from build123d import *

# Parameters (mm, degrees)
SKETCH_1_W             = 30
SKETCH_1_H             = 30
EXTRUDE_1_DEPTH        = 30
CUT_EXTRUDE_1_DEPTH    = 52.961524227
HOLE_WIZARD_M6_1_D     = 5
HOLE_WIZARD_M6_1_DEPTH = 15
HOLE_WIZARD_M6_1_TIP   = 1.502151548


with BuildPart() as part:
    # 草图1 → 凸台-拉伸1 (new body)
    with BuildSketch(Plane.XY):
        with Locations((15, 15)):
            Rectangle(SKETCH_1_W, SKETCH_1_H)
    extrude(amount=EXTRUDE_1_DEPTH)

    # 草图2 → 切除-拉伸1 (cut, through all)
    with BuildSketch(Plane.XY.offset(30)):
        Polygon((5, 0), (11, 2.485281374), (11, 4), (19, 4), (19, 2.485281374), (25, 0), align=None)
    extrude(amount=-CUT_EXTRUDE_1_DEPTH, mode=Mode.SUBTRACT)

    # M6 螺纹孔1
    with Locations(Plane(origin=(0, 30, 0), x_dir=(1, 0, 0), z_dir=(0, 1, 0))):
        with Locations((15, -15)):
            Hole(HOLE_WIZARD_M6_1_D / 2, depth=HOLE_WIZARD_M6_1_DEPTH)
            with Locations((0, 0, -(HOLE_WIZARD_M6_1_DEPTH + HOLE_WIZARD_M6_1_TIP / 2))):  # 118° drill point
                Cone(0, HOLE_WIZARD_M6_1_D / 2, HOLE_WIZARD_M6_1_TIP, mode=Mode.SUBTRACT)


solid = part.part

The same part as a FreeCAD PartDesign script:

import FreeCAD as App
import Part
import Sketcher
Q = App.Units.Quantity

doc = App.newDocument("Part")
body = doc.addObject("PartDesign::Body", "Body")

# Sketch on XY plane
sketch1 = body.newObject("Sketcher::SketchObject", "Sketch")
sketch1.AttachmentSupport = (doc.getObject("XY_Plane"), [""])
sketch1.MapMode = "FlatFace"
sketch1.addGeometry([
    Part.LineSegment(App.Vector(0, 30, 0), App.Vector(0, 0, 0)),
    Part.LineSegment(App.Vector(0, 0, 0), App.Vector(30, 0, 0)),
    Part.LineSegment(App.Vector(30, 0, 0), App.Vector(30, 30, 0)),
    Part.LineSegment(App.Vector(30, 30, 0), App.Vector(0, 30, 0)),
], False)
sketch1.addConstraint([
    Sketcher.Constraint("Coincident", 0, 2, 1, 1),
    Sketcher.Constraint("Coincident", 1, 2, 2, 1),
    Sketcher.Constraint("Coincident", 2, 2, 3, 1),
    Sketcher.Constraint("Coincident", 3, 2, 0, 1),
    Sketcher.Constraint("Vertical", 0),
    Sketcher.Constraint("Horizontal", 1),
    Sketcher.Constraint("Vertical", 2),
    Sketcher.Constraint("Horizontal", 3),
    Sketcher.Constraint("Coincident", 0, 2, -1, 1),
    Sketcher.Constraint("Equal", 3, 0),
    Sketcher.Constraint("DistanceX", 1, 1, 1, 2, 30.0),
])
pad1 = body.newObject("PartDesign::Pad", "Pad")
pad1.Profile = sketch1
pad1.Length = 30

# Sketch on XY plane
sketch2 = body.newObject("Sketcher::SketchObject", "Sketch001")
sketch2.AttachmentSupport = (doc.getObject("XY_Plane"), [""])
sketch2.MapMode = "FlatFace"
sketch2.AttachmentOffset = App.Placement(App.Vector(0, 0, 30), App.Rotation())
sketch2.addGeometry([
    Part.LineSegment(App.Vector(11, 2.5, 0), App.Vector(5, 0, 0)),  # 0
    Part.LineSegment(App.Vector(5, 0, 0), App.Vector(25, 0, 0)),  # 1
    Part.LineSegment(App.Vector(25, 0, 0), App.Vector(19, 2.5, 0)),  # 2
    Part.LineSegment(App.Vector(19, 2.5, 0), App.Vector(19, 4, 0)),  # 3
    Part.LineSegment(App.Vector(19, 4, 0), App.Vector(11, 4, 0)),  # 4
    Part.LineSegment(App.Vector(11, 4, 0), App.Vector(11, 2.5, 0)),  # 5
], False)
sketch2.addConstraint([
    Sketcher.Constraint("Coincident", 0, 2, 1, 1),
    Sketcher.Constraint("Coincident", 1, 2, 2, 1),
    Sketcher.Constraint("Coincident", 2, 2, 3, 1),
    Sketcher.Constraint("Coincident", 3, 2, 4, 1),
    Sketcher.Constraint("Coincident", 4, 2, 5, 1),
    Sketcher.Constraint("Coincident", 5, 2, 0, 1),
    Sketcher.Constraint("Horizontal", 1),
    Sketcher.Constraint("Vertical", 3),
    Sketcher.Constraint("Horizontal", 4),
    Sketcher.Constraint("Vertical", 5),
    Sketcher.Constraint("PointOnObject", 0, 2, -1),
    Sketcher.Constraint("Horizontal", 2, 2, 5, 2),
    Sketcher.Constraint("Equal", 0, 2),
    Sketcher.Constraint("DistanceX", 1, 1, 1, 2, 20.0),
    Sketcher.Constraint("DistanceX", 4, 2, 4, 1, 8.0),
    Sketcher.Constraint("DistanceX", -1, 1, 0, 2, 5.0),
    Sketcher.Constraint("DistanceY", -1, 1, 3, 2, 4.0),
    Sketcher.Constraint("Angle", 0, Q("-157.5 deg")),
])
pocket1 = body.newObject("PartDesign::Pocket", "Pocket")
pocket1.Profile = sketch2
pocket1.Type = "ThroughAll"

# Sketch on XZ plane
sketch3 = body.newObject("Sketcher::SketchObject", "Sketch002")
sketch3.AttachmentSupport = (doc.getObject("XZ_Plane"), [""])
sketch3.MapMode = "FlatFace"
sketch3.AttachmentOffset = App.Placement(App.Vector(0, 0, -30), App.Rotation())
sketch3.addGeometry(Part.Circle(App.Vector(15, 15, 0), App.Vector(0, 0, 1), 2.5), False)
sketch3.addConstraint([
    Sketcher.Constraint("Diameter", 0, 5.0),
    Sketcher.Constraint("DistanceX", -1, 1, 0, 3, 15.0),
    Sketcher.Constraint("DistanceY", -1, 1, 0, 3, 15.0),
])
doc.recompute()
hole = body.newObject("PartDesign::Hole", "Hole")
hole.Profile = sketch3
hole.ThreadType = "None"
hole.Diameter = 5
hole.DepthType = "Dimension"
hole.Depth = 15
hole.DrillPoint = "Angled"
hole.DrillPointAngle = 118
hole.Reversed = True

doc.recompute()
